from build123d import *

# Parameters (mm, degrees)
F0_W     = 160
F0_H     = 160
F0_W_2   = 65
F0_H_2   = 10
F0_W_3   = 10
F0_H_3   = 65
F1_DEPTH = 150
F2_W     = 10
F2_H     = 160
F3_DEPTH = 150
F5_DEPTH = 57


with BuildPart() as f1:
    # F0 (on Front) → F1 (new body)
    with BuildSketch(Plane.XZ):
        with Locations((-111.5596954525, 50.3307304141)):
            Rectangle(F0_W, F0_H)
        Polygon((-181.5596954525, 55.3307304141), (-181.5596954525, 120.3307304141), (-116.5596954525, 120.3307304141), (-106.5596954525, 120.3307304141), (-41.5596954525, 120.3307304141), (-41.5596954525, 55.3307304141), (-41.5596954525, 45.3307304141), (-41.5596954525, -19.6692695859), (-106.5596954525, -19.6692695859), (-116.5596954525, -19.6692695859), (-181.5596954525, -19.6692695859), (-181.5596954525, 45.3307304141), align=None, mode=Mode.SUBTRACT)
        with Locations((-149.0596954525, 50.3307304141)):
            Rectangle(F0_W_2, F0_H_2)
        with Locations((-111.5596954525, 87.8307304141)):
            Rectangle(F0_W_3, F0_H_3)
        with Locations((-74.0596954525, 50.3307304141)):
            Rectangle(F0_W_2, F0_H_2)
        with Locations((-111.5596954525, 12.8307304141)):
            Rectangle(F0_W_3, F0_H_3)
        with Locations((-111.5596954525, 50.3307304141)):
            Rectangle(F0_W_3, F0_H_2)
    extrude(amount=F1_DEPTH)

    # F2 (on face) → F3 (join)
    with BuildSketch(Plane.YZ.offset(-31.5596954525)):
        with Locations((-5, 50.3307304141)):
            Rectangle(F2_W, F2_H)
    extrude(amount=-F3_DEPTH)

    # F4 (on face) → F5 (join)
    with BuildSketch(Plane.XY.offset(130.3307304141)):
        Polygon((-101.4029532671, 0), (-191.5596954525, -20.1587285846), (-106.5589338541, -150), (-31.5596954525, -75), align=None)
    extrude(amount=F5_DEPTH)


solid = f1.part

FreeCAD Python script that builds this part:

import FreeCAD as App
import Part
import Sketcher

doc = App.newDocument("Part")
body = doc.addObject("PartDesign::Body", "Body")

sketch1 = body.newObject("Sketcher::SketchObject", "Sketch")
sketch1.AttachmentSupport = (doc.getObject("XZ_Plane"), [""])
sketch1.MapMode = "FlatFace"
sketch1.addGeometry(Part.LineSegment(App.Vector(-192, 130, 0), App.Vector(-192, -30, 0)), False)
sketch1.addGeometry(Part.LineSegment(App.Vector(-192, -30, 0), App.Vector(-32, -30, 0)), False)
sketch1.addGeometry(Part.LineSegment(App.Vector(-32, -30, 0), App.Vector(-32, 130, 0)), False)
sketch1.addGeometry(Part.LineSegment(App.Vector(-32, 130, 0), App.Vector(-192, 130, 0)), False)
sketch1.addGeometry(Part.LineSegment(App.Vector(-182, 45, 0), App.Vector(-117, 45, 0)), False)
sketch1.addGeometry(Part.LineSegment(App.Vector(-117, 45, 0), App.Vector(-117, -20, 0)), False)
sketch1.addGeometry(Part.LineSegment(App.Vector(-117, -20, 0), App.Vector(-182, -20, 0)), False)
sketch1.addGeometry(Part.LineSegment(App.Vector(-182, -20, 0), App.Vector(-182, 45, 0)), False)
sketch1.addGeometry(Part.LineSegment(App.Vector(-107, -20, 0), App.Vector(-107, 45, 0)), False)
sketch1.addGeometry(Part.LineSegment(App.Vector(-107, 45, 0), App.Vector(-42, 45, 0)), False)
sketch1.addGeometry(Part.LineSegment(App.Vector(-42, 45, 0), App.Vector(-42, -20, 0)), False)
sketch1.addGeometry(Part.LineSegment(App.Vector(-42, -20, 0), App.Vector(-107, -20, 0)), False)
sketch1.addGeometry(Part.LineSegment(App.Vector(-117, 55, 0), App.Vector(-182, 55, 0)), False)
sketch1.addGeometry(Part.LineSegment(App.Vector(-182, 55, 0), App.Vector(-182, 120, 0)), False)
sketch1.addGeometry(Part.LineSegment(App.Vector(-182, 120, 0), App.Vector(-117, 120, 0)), False)
sketch1.addGeometry(Part.LineSegment(App.Vector(-117, 120, 0), App.Vector(-117, 55, 0)), False)
sketch1.addGeometry(Part.LineSegment(App.Vector(-42, 55, 0), App.Vector(-107, 55, 0)), False)
sketch1.addGeometry(Part.LineSegment(App.Vector(-107, 55, 0), App.Vector(-107, 120, 0)), False)
sketch1.addGeometry(Part.LineSegment(App.Vector(-107, 120, 0), App.Vector(-42, 120, 0)), False)
sketch1.addGeometry(Part.LineSegment(App.Vector(-42, 120, 0), App.Vector(-42, 55, 0)), False)
sketch1.addConstraint(Sketcher.Constraint("Coincident", 0, 2, 1, 1))
sketch1.addConstraint(Sketcher.Constraint("Coincident", 1, 2, 2, 1))
sketch1.addConstraint(Sketcher.Constraint("Coincident", 2, 2, 3, 1))
sketch1.addConstraint(Sketcher.Constraint("Coincident", 3, 2, 0, 1))
sketch1.addConstraint(Sketcher.Constraint("Coincident", 4, 2, 5, 1))
sketch1.addConstraint(Sketcher.Constraint("Coincident", 5, 2, 6, 1))
sketch1.addConstraint(Sketcher.Constraint("Coincident", 6, 2, 7, 1))
sketch1.addConstraint(Sketcher.Constraint("Coincident", 7, 2, 4, 1))
sketch1.addConstraint(Sketcher.Constraint("Coincident", 8, 2, 9, 1))
sketch1.addConstraint(Sketcher.Constraint("Coincident", 9, 2, 10, 1))
sketch1.addConstraint(Sketcher.Constraint("Coincident", 10, 2, 11, 1))
sketch1.addConstraint(Sketcher.Constraint("Coincident", 11, 2, 8, 1))
sketch1.addConstraint(Sketcher.Constraint("Coincident", 12, 2, 13, 1))
sketch1.addConstraint(Sketcher.Constraint("Coincident", 13, 2, 14, 1))
sketch1.addConstraint(Sketcher.Constraint("Coincident", 14, 2, 15, 1))
sketch1.addConstraint(Sketcher.Constraint("Coincident", 15, 2, 12, 1))
sketch1.addConstraint(Sketcher.Constraint("Coincident", 16, 2, 17, 1))
sketch1.addConstraint(Sketcher.Constraint("Coincident", 17, 2, 18, 1))
sketch1.addConstraint(Sketcher.Constraint("Coincident", 18, 2, 19, 1))
sketch1.addConstraint(Sketcher.Constraint("Coincident", 19, 2, 16, 1))
sketch1.addConstraint(Sketcher.Constraint("Vertical", 0))
sketch1.addConstraint(Sketcher.Constraint("Horizontal", 1))
sketch1.addConstraint(Sketcher.Constraint("Vertical", 2))
sketch1.addConstraint(Sketcher.Constraint("Horizontal", 3))
sketch1.addConstraint(Sketcher.Constraint("Horizontal", 4))
sketch1.addConstraint(Sketcher.Constraint("Vertical", 5))
sketch1.addConstraint(Sketcher.Constraint("Horizontal", 6))
sketch1.addConstraint(Sketcher.Constraint("Vertical", 7))
sketch1.addConstraint(Sketcher.Constraint("Vertical", 8))
sketch1.addConstraint(Sketcher.Constraint("Horizontal", 9))
sketch1.addConstraint(Sketcher.Constraint("Vertical", 10))
sketch1.addConstraint(Sketcher.Constraint("Horizontal", 11))
sketch1.addConstraint(Sketcher.Constraint("Horizontal", 12))
sketch1.addConstraint(Sketcher.Constraint("Vertical", 13))
sketch1.addConstraint(Sketcher.Constraint("Horizontal", 14))
sketch1.addConstraint(Sketcher.Constraint("Vertical", 15))
sketch1.addConstraint(Sketcher.Constraint("Horizontal", 16))
sketch1.addConstraint(Sketcher.Constraint("Vertical", 17))
sketch1.addConstraint(Sketcher.Constraint("Horizontal", 18))
sketch1.addConstraint(Sketcher.Constraint("Vertical", 19))
sketch1.addConstraint(Sketcher.Constraint("Horizontal", 7, 2, 8, 2))
sketch1.addConstraint(Sketcher.Constraint("Horizontal", 6, 2, 10, 2))
sketch1.addConstraint(Sketcher.Constraint("Horizontal", 15, 2, 16, 2))
sketch1.addConstraint(Sketcher.Constraint("Horizontal", 14, 2, 17, 2))
sketch1.addConstraint(Sketcher.Constraint("Vertical", 7, 2, 12, 2))
sketch1.addConstraint(Sketcher.Constraint("Vertical", 5, 2, 14, 2))
sketch1.addConstraint(Sketcher.Constraint("Vertical", 11, 2, 16, 2))
sketch1.addConstraint(Sketcher.Constraint("Vertical", 10, 2, 18, 2))
sketch1.addConstraint(Sketcher.Constraint("Equal", 6, 9))
sketch1.addConstraint(Sketcher.Constraint("Equal", 3, 0))
sketch1.addConstraint(Sketcher.Constraint("Equal", 18, 5))
sketch1.addConstraint(Sketcher.Constraint("Equal", 10, 13))
sketch1.addConstraint(Sketcher.Constraint("DistanceX", 1, 1, 1, 2, 160.0))
sketch1.addConstraint(Sketcher.Constraint("DistanceX", 4, 1, 4, 2, 65.0))
sketch1.addConstraint(Sketcher.Constraint("DistanceX", 0, 2, 4, 2, 75.0))
sketch1.addConstraint(Sketcher.Constraint("DistanceY", 0, 2, 4, 2, 75.0))
sketch1.addConstraint(Sketcher.Constraint("DistanceX", 4, 2, 8, 2, 10.0))
sketch1.addConstraint(Sketcher.Constraint("DistanceY", 7, 2, 12, 2, 10.0))
sketch1.addConstraint(Sketcher.Constraint("DistanceY", 0, 2, -1, 1, 29.66927))
sketch1.addConstraint(Sketcher.Constraint("DistanceX", 0, 2, -1, 1, 191.559695))
pad1 = body.newObject("PartDesign::Pad", "Pad")
pad1.Profile = sketch1
pad1.Length = 150

sketch2 = body.newObject("Sketcher::SketchObject", "Sketch001")
sketch2.AttachmentSupport = (doc.getObject("YZ_Plane"), [""])
sketch2.MapMode = "FlatFace"
sketch2.AttachmentOffset = App.Placement(App.Vector(0, 0, -31.559695), App.Rotation())
sketch2.addGeometry(Part.LineSegment(App.Vector(-10, 130, 0), App.Vector(-10, -30, 0)), False)
sketch2.addGeometry(Part.LineSegment(App.Vector(-10, -30, 0), App.Vector(0, -30, 0)), False)
sketch2.addGeometry(Part.LineSegment(App.Vector(0, -30, 0), App.Vector(0, 130, 0)), False)
sketch2.addGeometry(Part.LineSegment(App.Vector(0, 130, 0), App.Vector(-10, 130, 0)), False)
sketch2.addConstraint(Sketcher.Constraint("Coincident", 0, 2, 1, 1))
sketch2.addConstraint(Sketcher.Constraint("Coincident", 1, 2, 2, 1))
sketch2.addConstraint(Sketcher.Constraint("Coincident", 2, 2, 3, 1))
sketch2.addConstraint(Sketcher.Constraint("Coincident", 3, 2, 0, 1))
sketch2.addConstraint(Sketcher.Constraint("Vertical", 0))
sketch2.addConstraint(Sketcher.Constraint("Horizontal", 1))
sketch2.addConstraint(Sketcher.Constraint("Vertical", 2))
sketch2.addConstraint(Sketcher.Constraint("Horizontal", 3))
sketch2.addConstraint(Sketcher.Constraint("PointOnObject", 1, 2, -2))
sketch2.addConstraint(Sketcher.Constraint("DistanceX", 1, 1, 1, 2, 10.0))
sketch2.addConstraint(Sketcher.Constraint("DistanceY", 0, 2, 0, 1, 160.0))
sketch2.addConstraint(Sketcher.Constraint("DistanceY", 0, 2, -1, 1, 29.66927))
pad2 = body.newObject("PartDesign::Pad", "Pad001")
pad2.Profile = sketch2
pad2.Length = 150
pad2.Reversed = True

sketch3 = body.newObject("Sketcher::SketchObject", "Sketch002")
sketch3.AttachmentSupport = (doc.getObject("XY_Plane"), [""])
sketch3.MapMode = "FlatFace"
sketch3.AttachmentOffset = App.Placement(App.Vector(0, 0, 130.33073), App.Rotation())
sketch3.addGeometry(Part.LineSegment(App.Vector(-101, 0, 0), App.Vector(-192, -20, 0)), False)
sketch3.addGeometry(Part.LineSegment(App.Vector(-192, -20, 0), App.Vector(-107, -150, 0)), False)
sketch3.addGeometry(Part.LineSegment(App.Vector(-107, -150, 0), App.Vector(-32, -75, 0)), False)
sketch3.addGeometry(Part.LineSegment(App.Vector(-32, -75, 0), App.Vector(-101, 0, 0)), False)
sketch3.addConstraint(Sketcher.Constraint("Coincident", 0, 2, 1, 1))
sketch3.addConstraint(Sketcher.Constraint("Coincident", 1, 2, 2, 1))
sketch3.addConstraint(Sketcher.Constraint("Coincident", 2, 2, 3, 1))
sketch3.addConstraint(Sketcher.Constraint("Coincident", 3, 2, 0, 1))
sketch3.addConstraint(Sketcher.Constraint("PointOnObject", 3, 2, -1))
sketch3.addConstraint(Sketcher.Constraint("DistanceY", 1, 2, -1, 1, 150.0))
sketch3.addConstraint(Sketcher.Constraint("DistanceY", 2, 2, -1, 1, 75.0))
sketch3.addConstraint(Sketcher.Constraint("DistanceX", 0, 2, 2, 2, 160.0))
sketch3.addConstraint(Sketcher.Constraint("Distance", 2, 106.065479))
sketch3.addConstraint(Sketcher.Constraint("Distance", 3, 102.484539))
sketch3.addConstraint(Sketcher.Constraint("DistanceY", 0, 2, -1, 1, 20.158729))
sketch3.addConstraint(Sketcher.Constraint("DistanceX", 0, 2, -1, 1, 191.559695))
pad3 = body.newObject("PartDesign::Pad", "Pad002")
pad3.Profile = sketch3
pad3.Length = 57

doc.recompute()
